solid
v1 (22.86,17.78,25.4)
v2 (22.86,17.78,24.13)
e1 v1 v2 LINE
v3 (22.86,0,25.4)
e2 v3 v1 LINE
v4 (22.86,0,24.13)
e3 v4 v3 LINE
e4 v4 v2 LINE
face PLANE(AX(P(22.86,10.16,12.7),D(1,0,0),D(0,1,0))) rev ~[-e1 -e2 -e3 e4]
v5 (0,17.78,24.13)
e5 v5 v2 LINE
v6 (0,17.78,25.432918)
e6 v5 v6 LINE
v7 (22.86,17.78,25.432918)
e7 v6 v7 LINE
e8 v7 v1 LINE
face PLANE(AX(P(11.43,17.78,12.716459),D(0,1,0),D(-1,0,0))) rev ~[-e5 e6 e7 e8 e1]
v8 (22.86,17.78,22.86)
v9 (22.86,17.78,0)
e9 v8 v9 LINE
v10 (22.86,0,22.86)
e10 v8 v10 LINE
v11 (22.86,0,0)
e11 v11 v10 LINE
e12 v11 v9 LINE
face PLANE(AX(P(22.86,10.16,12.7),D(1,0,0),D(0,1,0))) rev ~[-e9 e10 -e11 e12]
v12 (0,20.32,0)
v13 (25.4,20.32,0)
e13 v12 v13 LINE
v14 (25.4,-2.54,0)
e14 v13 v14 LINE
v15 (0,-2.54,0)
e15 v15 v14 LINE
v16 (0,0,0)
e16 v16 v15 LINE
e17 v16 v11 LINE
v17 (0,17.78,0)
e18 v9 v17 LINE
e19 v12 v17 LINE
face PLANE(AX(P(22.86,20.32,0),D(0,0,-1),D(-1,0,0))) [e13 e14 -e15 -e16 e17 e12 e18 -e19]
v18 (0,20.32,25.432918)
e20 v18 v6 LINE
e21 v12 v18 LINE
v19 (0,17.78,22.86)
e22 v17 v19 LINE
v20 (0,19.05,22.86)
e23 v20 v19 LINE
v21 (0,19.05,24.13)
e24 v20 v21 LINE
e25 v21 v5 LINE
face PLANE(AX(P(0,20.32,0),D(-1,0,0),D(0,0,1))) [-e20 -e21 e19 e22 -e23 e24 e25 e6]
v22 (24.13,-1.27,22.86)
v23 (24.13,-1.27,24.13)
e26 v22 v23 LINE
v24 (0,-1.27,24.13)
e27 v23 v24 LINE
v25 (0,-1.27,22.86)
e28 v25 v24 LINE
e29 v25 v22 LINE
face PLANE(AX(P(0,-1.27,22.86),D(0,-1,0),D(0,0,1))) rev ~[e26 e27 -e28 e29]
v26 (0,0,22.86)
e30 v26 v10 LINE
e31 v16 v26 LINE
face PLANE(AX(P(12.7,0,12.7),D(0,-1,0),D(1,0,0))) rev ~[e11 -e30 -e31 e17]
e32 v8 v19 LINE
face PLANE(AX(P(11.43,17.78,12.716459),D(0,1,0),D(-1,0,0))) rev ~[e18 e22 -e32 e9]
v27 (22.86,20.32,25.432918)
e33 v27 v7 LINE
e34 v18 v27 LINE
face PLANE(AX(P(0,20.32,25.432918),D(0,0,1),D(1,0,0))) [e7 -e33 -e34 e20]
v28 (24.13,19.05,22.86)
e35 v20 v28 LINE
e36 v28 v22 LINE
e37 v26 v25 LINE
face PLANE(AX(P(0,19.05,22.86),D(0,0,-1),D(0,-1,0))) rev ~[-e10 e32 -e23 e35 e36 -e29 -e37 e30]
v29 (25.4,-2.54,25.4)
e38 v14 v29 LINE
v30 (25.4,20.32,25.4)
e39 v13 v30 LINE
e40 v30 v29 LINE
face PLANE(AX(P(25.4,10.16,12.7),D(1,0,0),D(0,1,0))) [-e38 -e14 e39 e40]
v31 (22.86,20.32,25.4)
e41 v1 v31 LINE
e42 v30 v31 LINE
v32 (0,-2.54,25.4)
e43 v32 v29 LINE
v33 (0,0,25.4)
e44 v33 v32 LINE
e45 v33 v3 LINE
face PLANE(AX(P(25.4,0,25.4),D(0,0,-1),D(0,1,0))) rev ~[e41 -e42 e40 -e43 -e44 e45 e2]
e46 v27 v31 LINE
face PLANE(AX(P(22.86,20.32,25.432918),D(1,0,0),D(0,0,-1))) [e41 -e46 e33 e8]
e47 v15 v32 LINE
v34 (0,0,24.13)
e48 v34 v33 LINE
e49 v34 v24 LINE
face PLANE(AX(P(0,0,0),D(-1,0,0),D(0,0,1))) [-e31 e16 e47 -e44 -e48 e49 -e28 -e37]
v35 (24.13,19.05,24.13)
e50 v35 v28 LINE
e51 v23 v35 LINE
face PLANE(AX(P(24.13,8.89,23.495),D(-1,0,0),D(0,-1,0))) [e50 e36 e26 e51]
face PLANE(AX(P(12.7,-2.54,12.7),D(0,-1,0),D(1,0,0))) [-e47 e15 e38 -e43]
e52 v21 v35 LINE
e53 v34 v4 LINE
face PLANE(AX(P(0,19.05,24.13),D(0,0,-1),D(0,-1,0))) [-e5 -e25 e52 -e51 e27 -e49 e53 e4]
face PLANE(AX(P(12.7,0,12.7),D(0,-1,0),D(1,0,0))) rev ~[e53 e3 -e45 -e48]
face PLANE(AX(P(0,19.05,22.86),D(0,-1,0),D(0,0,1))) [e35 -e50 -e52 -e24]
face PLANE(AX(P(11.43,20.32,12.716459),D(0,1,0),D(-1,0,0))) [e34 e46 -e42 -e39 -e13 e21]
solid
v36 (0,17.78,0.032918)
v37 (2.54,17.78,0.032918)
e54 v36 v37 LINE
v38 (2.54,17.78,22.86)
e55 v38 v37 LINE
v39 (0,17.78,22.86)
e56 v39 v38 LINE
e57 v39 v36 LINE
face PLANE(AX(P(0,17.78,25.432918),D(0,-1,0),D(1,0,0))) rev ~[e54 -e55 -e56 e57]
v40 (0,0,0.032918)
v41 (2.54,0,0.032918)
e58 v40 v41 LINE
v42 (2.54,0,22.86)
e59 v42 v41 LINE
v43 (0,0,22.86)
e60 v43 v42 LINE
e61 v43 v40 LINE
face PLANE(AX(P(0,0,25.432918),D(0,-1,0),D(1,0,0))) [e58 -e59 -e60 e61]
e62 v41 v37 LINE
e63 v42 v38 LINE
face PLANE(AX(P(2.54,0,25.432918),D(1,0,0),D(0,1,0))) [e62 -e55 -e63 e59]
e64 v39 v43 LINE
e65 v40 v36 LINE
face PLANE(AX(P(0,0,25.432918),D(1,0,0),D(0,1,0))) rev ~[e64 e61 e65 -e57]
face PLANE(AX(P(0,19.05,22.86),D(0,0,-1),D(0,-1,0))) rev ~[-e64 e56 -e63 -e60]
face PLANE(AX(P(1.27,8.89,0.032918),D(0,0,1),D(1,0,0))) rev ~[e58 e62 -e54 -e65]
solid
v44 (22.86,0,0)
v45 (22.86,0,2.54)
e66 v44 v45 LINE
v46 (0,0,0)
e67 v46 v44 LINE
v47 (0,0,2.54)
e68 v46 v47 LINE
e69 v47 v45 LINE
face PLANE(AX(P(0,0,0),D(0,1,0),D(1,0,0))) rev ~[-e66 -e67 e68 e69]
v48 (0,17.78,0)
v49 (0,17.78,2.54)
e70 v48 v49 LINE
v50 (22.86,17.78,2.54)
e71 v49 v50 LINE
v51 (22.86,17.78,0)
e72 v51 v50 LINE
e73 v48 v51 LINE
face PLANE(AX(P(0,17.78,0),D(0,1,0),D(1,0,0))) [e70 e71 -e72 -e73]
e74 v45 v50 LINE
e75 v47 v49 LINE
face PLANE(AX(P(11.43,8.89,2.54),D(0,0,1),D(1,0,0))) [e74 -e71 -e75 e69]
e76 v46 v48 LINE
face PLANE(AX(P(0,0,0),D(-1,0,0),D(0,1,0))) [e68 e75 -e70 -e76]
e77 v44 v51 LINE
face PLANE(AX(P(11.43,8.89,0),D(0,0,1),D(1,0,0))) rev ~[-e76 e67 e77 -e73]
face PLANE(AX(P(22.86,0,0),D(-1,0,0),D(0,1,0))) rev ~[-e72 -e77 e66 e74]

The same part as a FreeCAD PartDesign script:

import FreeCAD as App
import Part
import Sketcher

V = App.Vector
Q = App.Units.Quantity

doc = App.newDocument("Part")
params = doc.addObject("Spreadsheet::Sheet", "Params")
for row, (alias, value) in enumerate([
    ("sketch1_width", "1 in"),
    ("pad1_length", "0.1 in"),
    ("sketch2_height", "1 in"),
    ("sketch2_width", "0.8 in"),
    ("pad2_length", "0.1 in"),
    ("sketch3_width", "0.9 in"),
    ("pad3_length", "0.1 in"),
    ("sketch4_width", "0.1 in"),
    ("sketch4_height", "0.7 in"),
    ("pad4_length", "1 in"),
    ("sketch5_width", "0.9 in"),
    ("sketch5_height", "0.7 in"),
    ("pad5_length", "0.1 in"),
    ("sketch6_width", "0.7 in"),
    ("sketch6_width2", "0.8 in"),
    ("pad6_length", "0.9 in"),
    ("sketch7_width", "0.8 in"),
    ("sketch7_height", "0.05 in"),
    ("pocket1_length", "0.05 in"),
], start=1):
    params.set(f"A{row}", alias)
    params.set(f"B{row}", "=" + value)
    params.setAlias(f"B{row}", alias)

body = doc.addObject("PartDesign::Body", "Body")

sketch1 = doc.addObject("Sketcher::SketchObject", "Sketch")
body.addObject(sketch1)
sketch1.AttachmentSupport = (doc.XZ_Plane, [""])
sketch1.MapMode = "FlatFace"
sketch1.addGeometry([
    Part.LineSegment(V(0, 25.4, 0), V(0, 0, 0)),
    Part.LineSegment(V(0, 0, 0), V(25.4, 0, 0)),
    Part.LineSegment(V(25.4, 0, 0), V(25.4, 25.4, 0)),
    Part.LineSegment(V(25.4, 25.4, 0), V(0, 25.4, 0)),
], False)
sketch1.addConstraint([
    Sketcher.Constraint("Coincident", 0, 2, 1, 1),
    Sketcher.Constraint("Coincident", 1, 2, 2, 1),
    Sketcher.Constraint("Coincident", 2, 2, 3, 1),
    Sketcher.Constraint("Coincident", 3, 2, 0, 1),
    Sketcher.Constraint("Vertical", 0),
    Sketcher.Constraint("Horizontal", 1),
    Sketcher.Constraint("Vertical", 2),
    Sketcher.Constraint("Horizontal", 3),
    Sketcher.Constraint("Coincident", 0, 2, -1, 1),
    Sketcher.Constraint("Equal", 3, 0),
    Sketcher.Constraint("DistanceX", 1, 1, 1, 2, Q("1 in")),
])
sketch1.setExpression("Constraints[10]", "Params.sketch1_width")
pad1 = doc.addObject("PartDesign::Pad", "Pad")
body.addObject(pad1)
pad1.Profile = sketch1
pad1.setExpression("Length", "Params.pad1_length")

sketch2 = doc.addObject("Sketcher::SketchObject", "Sketch001")
body.addObject(sketch2)
sketch2.AttachmentSupport = (doc.YZ_Plane, [""])
sketch2.MapMode = "FlatFace"
sketch2.AttachmentOffset = App.Placement(V(0, 0, 1 * 25.4), App.Rotation())
sketch2.addGeometry([
    Part.LineSegment(V(0, 25.4, 0), V(0, 0, 0)),
    Part.LineSegment(V(0, 0, 0), V(20.32, 0, 0)),
    Part.LineSegment(V(20.32, 0, 0), V(20.32, 25.4, 0)),
    Part.LineSegment(V(20.32, 25.4, 0), V(0, 25.4, 0)),
], False)
sketch2.addConstraint([
    Sketcher.Constraint("Coincident", 0, 2, 1, 1),
    Sketcher.Constraint("Coincident", 1, 2, 2, 1),
    Sketcher.Constraint("Coincident", 2, 2, 3, 1),
    Sketcher.Constraint("Coincident", 3, 2, 0, 1),
    Sketcher.Constraint("Vertical", 0),
    Sketcher.Constraint("Horizontal", 1),
    Sketcher.Constraint("Vertical", 2),
    Sketcher.Constraint("Horizontal", 3),
    Sketcher.Constraint("Coincident", 0, 2, -1, 1),
    Sketcher.Constraint("DistanceY", 0, 2, 0, 1, Q("1 in")),
    Sketcher.Constraint("DistanceX", 1, 1, 1, 2, Q("0.8 in")),
])
sketch2.setExpression("Constraints[9]", "Params.sketch2_height")
sketch2.setExpression("Constraints[10]", "Params.sketch2_width")
pad2 = doc.addObject("PartDesign::Pad", "Pad001")
body.addObject(pad2)
pad2.Profile = sketch2
pad2.setExpression("Length", "Params.pad2_length")
pad2.Reversed = True

sketch3 = doc.addObject("Sketcher::SketchObject", "Sketch002")
body.addObject(sketch3)
sketch3.AttachmentSupport = (doc.XZ_Plane, [""])
sketch3.MapMode = "FlatFace"
sketch3.AttachmentOffset = App.Placement(V(0, 0, -0.8 * 25.4), App.Rotation())
sketch3.addGeometry([
    Part.LineSegment(V(22.86, 0, 0), V(0, 0, 0)),
    Part.LineSegment(V(0, 0, 0), V(0, 25.432918, 0)),
    Part.LineSegment(V(0, 25.432918, 0), V(22.86, 25.432918, 0)),
    Part.LineSegment(V(22.86, 25.432918, 0), V(22.86, 0, 0)),
], False)
sketch3.addConstraint([
    Sketcher.Constraint("Coincident", 0, 2, 1, 1),
    Sketcher.Constraint("Coincident", 1, 2, 2, 1),
    Sketcher.Constraint("Coincident", 2, 2, 3, 1),
    Sketcher.Constraint("Coincident", 3, 2, 0, 1),
    Sketcher.Constraint("Horizontal", 0),
    Sketcher.Constraint("Vertical", 1),
    Sketcher.Constraint("Horizontal", 2),
    Sketcher.Constraint("Vertical", 3),
    Sketcher.Constraint("Coincident", 0, 2, -1, 1),
    Sketcher.Constraint("DistanceX", 0, 2, 0, 1, Q("0.9 in")),
    Sketcher.Constraint("DistanceY", 1, 1, 1, 2, 25.432918),
])
sketch3.setExpression("Constraints[9]", "Params.sketch3_width")
pad3 = doc.addObject("PartDesign::Pad", "Pad002")
body.addObject(pad3)
pad3.Profile = sketch3
pad3.setExpression("Length", "Params.pad3_length")
body2 = doc.addObject("PartDesign::Body", "Body001")

sketch4 = doc.addObject("Sketcher::SketchObject", "Sketch003")
body2.addObject(sketch4)
sketch4.AttachmentSupport = (doc.getObject("XY_Plane001"), [""])
sketch4.MapMode = "FlatFace"
sketch4.AttachmentOffset = App.Placement(V(0, 0, 25.432918), App.Rotation())
sketch4.addGeometry([
    Part.LineSegment(V(0, 17.78, 0), V(0, 0, 0)),
    Part.LineSegment(V(0, 0, 0), V(2.54, 0, 0)),
    Part.LineSegment(V(2.54, 0, 0), V(2.54, 17.78, 0)),
    Part.LineSegment(V(2.54, 17.78, 0), V(0, 17.78, 0)),
], False)
sketch4.addConstraint([
    Sketcher.Constraint("Coincident", 0, 2, 1, 1),
    Sketcher.Constraint("Coincident", 1, 2, 2, 1),
    Sketcher.Constraint("Coincident", 2, 2, 3, 1),
    Sketcher.Constraint("Coincident", 3, 2, 0, 1),
    Sketcher.Constraint("Vertical", 0),
    Sketcher.Constraint("Horizontal", 1),
    Sketcher.Constraint("Vertical", 2),
    Sketcher.Constraint("Horizontal", 3),
    Sketcher.Constraint("Coincident", 0, 2, -1, 1),
    Sketcher.Constraint("DistanceX", 1, 1, 1, 2, Q("0.1 in")),
    Sketcher.Constraint("DistanceY", 0, 2, 0, 1, Q("0.7 in")),
])
sketch4.setExpression("Constraints[9]", "Params.sketch4_width")
sketch4.setExpression("Constraints[10]", "Params.sketch4_height")
pad4 = doc.addObject("PartDesign::Pad", "Pad003")
body2.addObject(pad4)
pad4.Profile = sketch4
pad4.setExpression("Length", "Params.pad4_length")
pad4.Reversed = True
body3 = doc.addObject("PartDesign::Body", "Body002")

sketch5 = doc.addObject("Sketcher::SketchObject", "Sketch004")
body3.addObject(sketch5)
sketch5.AttachmentSupport = (doc.getObject("XY_Plane002"), [""])
sketch5.MapMode = "FlatFace"
sketch5.addGeometry([
    Part.LineSegment(V(0, 17.78, 0), V(0, 0, 0)),
    Part.LineSegment(V(0, 0, 0), V(22.86, 0, 0)),
    Part.LineSegment(V(22.86, 0, 0), V(22.86, 17.78, 0)),
    Part.LineSegment(V(22.86, 17.78, 0), V(0, 17.78, 0)),
], False)
sketch5.addConstraint([
    Sketcher.Constraint("Coincident", 0, 2, 1, 1),
    Sketcher.Constraint("Coincident", 1, 2, 2, 1),
    Sketcher.Constraint("Coincident", 2, 2, 3, 1),
    Sketcher.Constraint("Coincident", 3, 2, 0, 1),
    Sketcher.Constraint("Vertical", 0),
    Sketcher.Constraint("Horizontal", 1),
    Sketcher.Constraint("Vertical", 2),
    Sketcher.Constraint("Horizontal", 3),
    Sketcher.Constraint("Coincident", 0, 2, -1, 1),
    Sketcher.Constraint("DistanceX", 1, 1, 1, 2, Q("0.9 in")),
    Sketcher.Constraint("DistanceY", 0, 2, 0, 1, Q("0.7 in")),
])
sketch5.setExpression("Constraints[9]", "Params.sketch5_width")
sketch5.setExpression("Constraints[10]", "Params.sketch5_height")
pad5 = doc.addObject("PartDesign::Pad", "Pad004")
body3.addObject(pad5)
pad5.Profile = sketch5
pad5.setExpression("Length", "Params.pad5_length")
body4 = doc.addObject("PartDesign::Body", "Body003")

sketch6 = doc.addObject("Sketcher::SketchObject", "Sketch005")
body4.addObject(sketch6)
sketch6.AttachmentSupport = (doc.getObject("YZ_Plane003"), [""])
sketch6.MapMode = "FlatFace"
sketch6.addGeometry([
    Part.LineSegment(V(-1.27, 22.86, 0), V(-1.27, 24.13, 0)),
    Part.LineSegment(V(-1.27, 24.13, 0), V(0, 24.13, 0)),
    Part.LineSegment(V(0, 24.13, 0), V(0, 25.432918, 0)),
    Part.LineSegment(V(0, 25.432918, 0), V(17.78, 25.432918, 0)),
    Part.LineSegment(V(17.78, 25.432918, 0), V(17.78, 24.13, 0)),
    Part.LineSegment(V(17.78, 24.13, 0), V(19.05, 24.13, 0)),
    Part.LineSegment(V(19.05, 24.13, 0), V(19.05, 22.86, 0)),
    Part.LineSegment(V(19.05, 22.86, 0), V(-1.27, 22.86, 0)),
], False)
sketch6.addConstraint([
    Sketcher.Constraint("Coincident", 0, 2, 1, 1),
    Sketcher.Constraint("Coincident", 1, 2, 2, 1),
    Sketcher.Constraint("Coincident", 2, 2, 3, 1),
    Sketcher.Constraint("Coincident", 3, 2, 4, 1),
    Sketcher.Constraint("Coincident", 4, 2, 5, 1),
    Sketcher.Constraint("Coincident", 5, 2, 6, 1),
    Sketcher.Constraint("Coincident", 6, 2, 7, 1),
    Sketcher.Constraint("Coincident", 7, 2, 0, 1),
    Sketcher.Constraint("Vertical", 0),
    Sketcher.Constraint("Horizontal", 1),
    Sketcher.Constraint("Vertical", 2),
    Sketcher.Constraint("Horizontal", 3),
    Sketcher.Constraint("Vertical", 4),
    Sketcher.Constraint("Horizontal", 5),
    Sketcher.Constraint("Vertical", 6),
    Sketcher.Constraint("Horizontal", 7),
    Sketcher.Constraint("PointOnObject", 1, 2, -2),
    Sketcher.Constraint("Horizontal", 1, 2, 4, 2),
    Sketcher.Constraint("Equal", 1, 5),
    Sketcher.Constraint("Equal", 5, 0),
    Sketcher.Constraint("DistanceX", 3, 1, 3, 2, Q("0.7 in")),
    Sketcher.Constraint("DistanceX", 7, 2, 7, 1, Q("0.8 in")),
    Sketcher.Constraint("DistanceY", -1, 1, 6, 2, Q("0.9 in")),
    Sketcher.Constraint("DistanceY", 2, 1, 2, 2, 1.302918),
])
sketch6.setExpression("Constraints[20]", "Params.sketch6_width")
sketch6.setExpression("Constraints[21]", "Params.sketch6_width2")
pad6 = doc.addObject("PartDesign::Pad", "Pad005")
body4.addObject(pad6)
pad6.Profile = sketch6
pad6.setExpression("Length", "Params.pad6_length")
doc.recompute()

body5 = doc.addObject("PartDesign::Body", "Body004")
body5.BaseFeature = body4
boolean = doc.addObject("PartDesign::Boolean", "Boolean")
body.addObject(boolean)
boolean.Type = "Cut"
boolean.addObjects([body5])
doc.recompute()

sketch7 = doc.addObject("Sketcher::SketchObject", "Sketch006")
body.addObject(sketch7)
sketch7.AttachmentSupport = (doc.YZ_Plane, [""])
sketch7.MapMode = "FlatFace"
sketch7.AttachmentOffset = App.Placement(V(0, 0, 0.9 * 25.4), App.Rotation())
sketch7.addGeometry([
    Part.LineSegment(V(19.05, 24.13, 0), V(19.05, 22.86, 0)),
    Part.LineSegment(V(19.05, 22.86, 0), V(-1.27, 22.86, 0)),
    Part.LineSegment(V(-1.27, 22.86, 0), V(-1.27, 24.13, 0)),
    Part.LineSegment(V(-1.27, 24.13, 0), V(19.05, 24.13, 0)),
], False)
sketch7.addConstraint([
    Sketcher.Constraint("Coincident", 0, 2, 1, 1),
    Sketcher.Constraint("Coincident", 1, 2, 2, 1),
    Sketcher.Constraint("Coincident", 2, 2, 3, 1),
    Sketcher.Constraint("Coincident", 3, 2, 0, 1),
    Sketcher.Constraint("Vertical", 0),
    Sketcher.Constraint("Horizontal", 1),
    Sketcher.Constraint("Vertical", 2),
    Sketcher.Constraint("Horizontal", 3),
    Sketcher.Constraint("DistanceX", 1, 2, 1, 1, Q("0.8 in")),
    Sketcher.Constraint("DistanceY", 0, 2, 0, 1, Q("0.05 in")),
    Sketcher.Constraint("DistanceY", -1, 1, 0, 2, Q("0.9 in")),
    Sketcher.Constraint("DistanceX", -1, 1, 0, 2, Q("0.75 in")),
])
sketch7.setExpression("Constraints[8]", "Params.sketch7_width")
sketch7.setExpression("Constraints[9]", "Params.sketch7_height")
pocket1 = doc.addObject("PartDesign::Pocket", "Pocket")
body.addObject(pocket1)
pocket1.Profile = sketch7
pocket1.setExpression("Length", "Params.pocket1_length")
pocket1.Reversed = True
doc.recompute()

boolean2 = doc.addObject("PartDesign::Boolean", "Boolean001")
body2.addObject(boolean2)
boolean2.Type = "Cut"
boolean2.addObjects([body4])

doc.recompute()
